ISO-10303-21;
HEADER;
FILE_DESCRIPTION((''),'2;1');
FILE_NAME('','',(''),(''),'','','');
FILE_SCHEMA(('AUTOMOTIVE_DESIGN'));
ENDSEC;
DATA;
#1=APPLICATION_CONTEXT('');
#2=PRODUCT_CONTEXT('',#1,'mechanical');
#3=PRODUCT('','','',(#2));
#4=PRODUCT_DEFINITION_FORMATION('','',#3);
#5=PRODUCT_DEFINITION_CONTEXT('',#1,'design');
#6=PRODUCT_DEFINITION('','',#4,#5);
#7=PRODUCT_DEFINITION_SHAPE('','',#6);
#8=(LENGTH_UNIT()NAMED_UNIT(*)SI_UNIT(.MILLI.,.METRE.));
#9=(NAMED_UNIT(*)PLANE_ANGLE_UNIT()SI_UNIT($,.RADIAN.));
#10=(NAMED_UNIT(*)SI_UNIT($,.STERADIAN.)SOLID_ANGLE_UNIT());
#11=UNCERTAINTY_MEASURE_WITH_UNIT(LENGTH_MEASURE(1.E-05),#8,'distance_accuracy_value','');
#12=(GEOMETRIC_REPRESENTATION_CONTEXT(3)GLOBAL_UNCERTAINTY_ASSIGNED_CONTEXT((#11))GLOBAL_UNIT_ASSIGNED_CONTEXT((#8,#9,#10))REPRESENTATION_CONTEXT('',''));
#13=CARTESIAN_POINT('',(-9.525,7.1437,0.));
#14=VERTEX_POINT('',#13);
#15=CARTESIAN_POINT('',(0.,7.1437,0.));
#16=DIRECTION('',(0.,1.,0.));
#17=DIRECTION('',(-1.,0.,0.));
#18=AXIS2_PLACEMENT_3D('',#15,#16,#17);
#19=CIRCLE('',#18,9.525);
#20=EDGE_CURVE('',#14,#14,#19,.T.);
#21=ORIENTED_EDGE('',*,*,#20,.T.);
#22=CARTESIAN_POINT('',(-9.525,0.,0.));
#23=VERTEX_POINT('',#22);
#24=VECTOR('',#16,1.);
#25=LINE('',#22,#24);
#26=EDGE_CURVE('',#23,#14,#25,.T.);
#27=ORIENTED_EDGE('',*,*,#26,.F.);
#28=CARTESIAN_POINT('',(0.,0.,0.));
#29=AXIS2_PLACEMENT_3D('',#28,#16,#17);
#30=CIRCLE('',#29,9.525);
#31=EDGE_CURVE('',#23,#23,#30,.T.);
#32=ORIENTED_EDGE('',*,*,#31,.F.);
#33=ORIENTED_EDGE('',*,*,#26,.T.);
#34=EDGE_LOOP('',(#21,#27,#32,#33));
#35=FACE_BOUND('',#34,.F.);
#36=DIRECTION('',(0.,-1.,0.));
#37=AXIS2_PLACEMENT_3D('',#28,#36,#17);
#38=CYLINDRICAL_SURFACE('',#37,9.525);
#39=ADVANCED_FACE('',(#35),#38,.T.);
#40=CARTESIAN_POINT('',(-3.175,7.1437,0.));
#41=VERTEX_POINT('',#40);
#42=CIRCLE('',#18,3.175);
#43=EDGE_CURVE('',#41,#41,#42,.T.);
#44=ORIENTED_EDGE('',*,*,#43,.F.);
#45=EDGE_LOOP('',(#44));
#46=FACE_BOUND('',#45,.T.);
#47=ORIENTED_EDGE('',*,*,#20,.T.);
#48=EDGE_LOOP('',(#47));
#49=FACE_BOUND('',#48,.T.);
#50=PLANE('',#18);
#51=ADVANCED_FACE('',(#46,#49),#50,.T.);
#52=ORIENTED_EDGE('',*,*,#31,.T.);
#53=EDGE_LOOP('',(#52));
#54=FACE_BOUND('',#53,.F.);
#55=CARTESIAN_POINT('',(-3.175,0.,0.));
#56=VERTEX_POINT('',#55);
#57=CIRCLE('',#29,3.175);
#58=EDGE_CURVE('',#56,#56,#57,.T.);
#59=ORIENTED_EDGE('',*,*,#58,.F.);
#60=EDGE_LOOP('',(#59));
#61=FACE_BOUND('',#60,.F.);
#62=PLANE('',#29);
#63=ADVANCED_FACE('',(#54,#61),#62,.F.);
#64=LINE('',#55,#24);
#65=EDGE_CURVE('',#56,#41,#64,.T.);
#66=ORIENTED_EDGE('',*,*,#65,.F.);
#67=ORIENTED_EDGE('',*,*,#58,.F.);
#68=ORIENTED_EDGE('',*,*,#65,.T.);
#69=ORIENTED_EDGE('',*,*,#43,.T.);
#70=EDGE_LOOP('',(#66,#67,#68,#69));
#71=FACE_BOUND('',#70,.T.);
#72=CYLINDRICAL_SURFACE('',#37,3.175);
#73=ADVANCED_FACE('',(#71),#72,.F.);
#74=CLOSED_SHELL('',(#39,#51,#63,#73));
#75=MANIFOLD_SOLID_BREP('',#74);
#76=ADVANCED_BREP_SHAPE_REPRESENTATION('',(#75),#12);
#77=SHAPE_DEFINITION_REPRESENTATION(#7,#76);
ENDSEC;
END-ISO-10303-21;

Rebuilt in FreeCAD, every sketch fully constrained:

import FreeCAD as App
import Part
import Sketcher
Q = App.Units.Quantity

doc = App.newDocument("Part")
body = doc.addObject("PartDesign::Body", "Body")

# Sketch on XZ plane
sketch1 = body.newObject("Sketcher::SketchObject", "Sketch")
sketch1.AttachmentSupport = (doc.getObject("XZ_Plane"), [""])
sketch1.MapMode = "FlatFace"
sketch1.addGeometry([
    Part.Circle(App.Vector(0, 0, 0), App.Vector(0, 0, 1), 9.5),
    Part.Circle(App.Vector(0, 0, 0), App.Vector(0, 0, 1), 3.2),
], False)
sketch1.addConstraint([
    Sketcher.Constraint("Coincident", 0, 3, -1, 1),
    Sketcher.Constraint("Coincident", 1, 3, -1, 1),
    Sketcher.Constraint("Diameter", 0, Q("0.75 in")),
    Sketcher.Constraint("Diameter", 1, Q("0.25 in")),
])
pad1 = body.newObject("PartDesign::Pad", "Pad")
pad1.Profile = sketch1
pad1.Length = Q("0.281248 in")
pad1.Reversed = True

doc.recompute()
